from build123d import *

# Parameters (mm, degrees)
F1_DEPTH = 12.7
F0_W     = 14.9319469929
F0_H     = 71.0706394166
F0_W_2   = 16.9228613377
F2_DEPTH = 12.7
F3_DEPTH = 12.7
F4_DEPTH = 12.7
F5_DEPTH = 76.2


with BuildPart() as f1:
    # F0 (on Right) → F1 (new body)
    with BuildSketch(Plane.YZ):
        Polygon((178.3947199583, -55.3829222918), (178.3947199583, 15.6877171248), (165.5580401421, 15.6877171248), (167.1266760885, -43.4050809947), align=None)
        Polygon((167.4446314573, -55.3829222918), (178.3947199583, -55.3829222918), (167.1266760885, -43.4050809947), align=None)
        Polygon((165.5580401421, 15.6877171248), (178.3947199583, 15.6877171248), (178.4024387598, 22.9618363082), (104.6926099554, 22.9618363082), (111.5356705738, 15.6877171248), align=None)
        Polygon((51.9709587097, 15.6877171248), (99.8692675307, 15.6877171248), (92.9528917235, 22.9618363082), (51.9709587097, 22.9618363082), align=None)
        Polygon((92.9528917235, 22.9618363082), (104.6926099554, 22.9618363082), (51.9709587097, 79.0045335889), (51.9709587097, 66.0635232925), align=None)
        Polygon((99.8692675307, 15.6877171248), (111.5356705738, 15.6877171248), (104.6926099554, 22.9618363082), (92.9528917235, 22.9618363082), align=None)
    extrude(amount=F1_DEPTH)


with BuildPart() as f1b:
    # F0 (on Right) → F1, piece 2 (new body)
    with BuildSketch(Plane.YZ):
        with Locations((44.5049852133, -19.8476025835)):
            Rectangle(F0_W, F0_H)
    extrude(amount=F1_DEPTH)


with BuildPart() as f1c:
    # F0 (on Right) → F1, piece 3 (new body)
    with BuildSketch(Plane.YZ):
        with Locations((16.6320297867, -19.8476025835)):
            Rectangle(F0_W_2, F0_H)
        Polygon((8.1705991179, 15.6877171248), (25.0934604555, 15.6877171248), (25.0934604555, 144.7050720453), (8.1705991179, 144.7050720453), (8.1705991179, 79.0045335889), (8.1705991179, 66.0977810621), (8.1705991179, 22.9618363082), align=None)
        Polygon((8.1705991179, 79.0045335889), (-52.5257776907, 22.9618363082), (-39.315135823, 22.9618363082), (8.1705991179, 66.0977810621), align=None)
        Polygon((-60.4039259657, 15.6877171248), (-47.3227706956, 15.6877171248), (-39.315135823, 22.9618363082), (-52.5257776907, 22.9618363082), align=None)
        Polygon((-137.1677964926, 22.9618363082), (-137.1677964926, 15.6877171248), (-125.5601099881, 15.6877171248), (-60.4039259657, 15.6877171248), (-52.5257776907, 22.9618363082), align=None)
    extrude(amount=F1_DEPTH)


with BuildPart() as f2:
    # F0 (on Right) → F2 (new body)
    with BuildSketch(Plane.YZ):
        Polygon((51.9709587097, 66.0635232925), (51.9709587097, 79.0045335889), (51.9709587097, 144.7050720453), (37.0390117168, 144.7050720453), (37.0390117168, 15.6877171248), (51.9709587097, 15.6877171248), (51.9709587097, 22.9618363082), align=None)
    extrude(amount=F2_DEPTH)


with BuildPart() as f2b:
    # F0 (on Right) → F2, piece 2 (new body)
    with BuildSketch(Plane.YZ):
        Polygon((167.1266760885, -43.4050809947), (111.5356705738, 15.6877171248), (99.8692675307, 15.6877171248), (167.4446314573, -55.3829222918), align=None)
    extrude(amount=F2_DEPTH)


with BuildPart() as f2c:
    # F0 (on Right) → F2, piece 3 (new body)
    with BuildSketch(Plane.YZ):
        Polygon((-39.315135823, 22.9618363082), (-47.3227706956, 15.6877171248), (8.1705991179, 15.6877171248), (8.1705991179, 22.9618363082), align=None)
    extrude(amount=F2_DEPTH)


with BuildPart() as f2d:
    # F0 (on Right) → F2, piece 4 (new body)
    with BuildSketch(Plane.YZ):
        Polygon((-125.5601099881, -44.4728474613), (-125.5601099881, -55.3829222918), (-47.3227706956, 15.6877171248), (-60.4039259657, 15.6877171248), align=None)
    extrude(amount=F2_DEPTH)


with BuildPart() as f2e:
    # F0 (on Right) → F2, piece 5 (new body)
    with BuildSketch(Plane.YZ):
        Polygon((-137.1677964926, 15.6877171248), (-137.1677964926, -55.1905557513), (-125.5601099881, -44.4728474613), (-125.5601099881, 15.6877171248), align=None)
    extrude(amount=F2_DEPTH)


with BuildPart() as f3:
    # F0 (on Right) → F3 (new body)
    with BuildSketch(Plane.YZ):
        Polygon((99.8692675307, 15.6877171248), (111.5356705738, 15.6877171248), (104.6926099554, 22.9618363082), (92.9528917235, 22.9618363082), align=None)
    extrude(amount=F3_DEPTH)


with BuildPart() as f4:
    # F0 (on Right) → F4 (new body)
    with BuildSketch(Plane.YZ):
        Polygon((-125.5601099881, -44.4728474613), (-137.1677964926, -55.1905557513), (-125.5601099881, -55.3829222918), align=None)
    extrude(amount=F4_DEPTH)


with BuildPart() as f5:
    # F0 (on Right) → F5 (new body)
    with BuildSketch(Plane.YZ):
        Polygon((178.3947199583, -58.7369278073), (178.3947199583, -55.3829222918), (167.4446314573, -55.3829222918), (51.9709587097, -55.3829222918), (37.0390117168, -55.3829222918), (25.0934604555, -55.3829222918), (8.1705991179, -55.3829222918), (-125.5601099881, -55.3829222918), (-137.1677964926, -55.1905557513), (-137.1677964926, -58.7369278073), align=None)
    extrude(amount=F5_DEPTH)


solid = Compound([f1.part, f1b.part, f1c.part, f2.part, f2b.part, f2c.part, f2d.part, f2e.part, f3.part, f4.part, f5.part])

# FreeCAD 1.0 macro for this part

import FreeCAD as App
import Part
import Sketcher

V = App.Vector
Q = App.Units.Quantity


def add_polygon(sketch, points):
    """Adds a closed chain of lines whose ends are joined by coincident constraints."""
    first, n = sketch.GeometryCount, len(points)
    for a, b in zip(points, points[1:] + points[:1]):
        sketch.addGeometry(Part.LineSegment(App.Vector(*a, 0), App.Vector(*b, 0)), False)
    for i in range(n):
        sketch.addConstraint(Sketcher.Constraint("Coincident", first + i, 2, first + (i + 1) % n, 1))

doc = App.newDocument("Part")
body = doc.addObject("PartDesign::Body", "Body")

# Sketch on YZ plane
sketch1 = body.newObject("Sketcher::SketchObject", "Sketch")
sketch1.AttachmentSupport = (doc.getObject("YZ_Plane"), [""])
sketch1.MapMode = "FlatFace"
add_polygon(sketch1, [(178, -55), (178, 16), (178, 23), (105, 23), (52, 79), (52, 66), (93, 23), (52, 23), (52, 16), (166, 16), (167, -55)])  # lines 0-10
sketch1.addConstraint([
    Sketcher.Constraint("Vertical", 0),
    Sketcher.Constraint("Horizontal", 2),
    Sketcher.Constraint("Vertical", 4),
    Sketcher.Constraint("Horizontal", 6),
    Sketcher.Constraint("Vertical", 7),
    Sketcher.Constraint("Horizontal", 8),
    Sketcher.Constraint("Horizontal", 10),
    Sketcher.Constraint("Horizontal", 2, 2, 5, 2),
    Sketcher.Constraint("Horizontal", 0, 2, 7, 2),
    Sketcher.Constraint("Vertical", 4, 2, 6, 2),
    Sketcher.Constraint("DistanceX", 2, 2, 2, 1, Q("73.709829 mm")),
    Sketcher.Constraint("DistanceX", 8, 1, 8, 2, Q("113.587081 mm")),
    Sketcher.Constraint("DistanceX", 10, 1, 10, 2, Q("10.950089 mm")),
    Sketcher.Constraint("DistanceY", 0, 1, 0, 2, Q("71.070639 mm")),
    Sketcher.Constraint("DistanceY", 4, 2, 4, 1, Q("12.94101 mm")),
    Sketcher.Constraint("DistanceY", 7, 2, 7, 1, Q("7.274119 mm")),
    Sketcher.Constraint("DistanceX", 8, 2, 1, 2, Q("12.844399 mm")),
    Sketcher.Constraint("Distance", 5, Q("59.474988 mm")),
    Sketcher.Constraint("DistanceX", 6, 2, 6, 1, Q("40.981933 mm")),
    Sketcher.Constraint("DistanceX", -1, 1, 0, 2, Q("178.39472 mm")),
    Sketcher.Constraint("DistanceX", -1, 1, 1, 2, Q("178.402439 mm")),
    Sketcher.Constraint("DistanceY", -1, 1, 0, 2, Q("15.687717 mm")),
])
pad1 = body.newObject("PartDesign::Pad", "Pad")
pad1.Profile = sketch1
pad1.Length = Q("0.5 in")
body2 = doc.addObject("PartDesign::Body", "Body001")

# Sketch on YZ plane
sketch2 = body2.newObject("Sketcher::SketchObject", "Sketch001")
sketch2.AttachmentSupport = (doc.getObject("YZ_Plane001"), [""])
sketch2.MapMode = "FlatFace"
add_polygon(sketch2, [(37, 16), (37, -55), (52, -55), (52, 16)])  # lines 0-3
sketch2.addConstraint([
    Sketcher.Constraint("Vertical", 0),
    Sketcher.Constraint("Horizontal", 1),
    Sketcher.Constraint("Vertical", 2),
    Sketcher.Constraint("Horizontal", 3),
    Sketcher.Constraint("DistanceY", 0, 2, 0, 1, Q("71.070639 mm")),
    Sketcher.Constraint("DistanceX", 1, 1, 1, 2, Q("14.931947 mm")),
    Sketcher.Constraint("DistanceX", -1, 1, 0, 2, Q("37.039012 mm")),
    Sketcher.Constraint("DistanceY", 0, 2, -1, 1, Q("55.382922 mm")),
])
pad2 = body2.newObject("PartDesign::Pad", "Pad001")
pad2.Profile = sketch2
pad2.Length = Q("0.5 in")
body3 = doc.addObject("PartDesign::Body", "Body002")

# Sketch on YZ plane
sketch3 = body3.newObject("Sketcher::SketchObject", "Sketch002")
sketch3.AttachmentSupport = (doc.getObject("YZ_Plane002"), [""])
sketch3.MapMode = "FlatFace"
add_polygon(sketch3, [(8, -55), (25, -55), (25, 145), (8, 145), (8, 79), (-53, 23), (-137, 23), (-137, 16), (-47, 16), (-39, 23), (8, 66)])  # lines 0-10
sketch3.addConstraint([
    Sketcher.Constraint("Horizontal", 0),
    Sketcher.Constraint("Vertical", 1),
    Sketcher.Constraint("Horizontal", 2),
    Sketcher.Constraint("Vertical", 3),
    Sketcher.Constraint("Horizontal", 5),
    Sketcher.Constraint("Vertical", 6),
    Sketcher.Constraint("Horizontal", 7),
    Sketcher.Constraint("Vertical", 10),
    Sketcher.Constraint("Parallel", 8, 9),
    Sketcher.Constraint("Horizontal", 5, 2, 8, 2),
    Sketcher.Constraint("Vertical", 3, 2, 9, 2),
    Sketcher.Constraint("DistanceX", 0, 1, 0, 2, Q("16.922861 mm")),
    Sketcher.Constraint("DistanceX", 5, 2, 5, 1, Q("84.642019 mm")),
    Sketcher.Constraint("DistanceY", 3, 2, 3, 1, Q("65.700538 mm")),
    Sketcher.Constraint("DistanceY", 6, 2, 6, 1, Q("7.274119 mm")),
    Sketcher.Constraint("DistanceX", -1, 1, 2, 2, Q("8.170599 mm")),
    Sketcher.Constraint("Distance", 9, Q("64.152979 mm")),
    Sketcher.Constraint("DistanceX", 7, 1, 7, 2, Q("89.845026 mm")),
    Sketcher.Constraint("DistanceY", 1, 1, 1, 2, Q("200.087994 mm")),
    Sketcher.Constraint("DistanceY", 10, 2, 10, 1, Q("121.480703 mm")),
    Sketcher.Constraint("DistanceX", 7, 2, -1, 1, Q("47.322771 mm")),
    Sketcher.Constraint("DistanceY", -1, 1, 9, 2, Q("66.097781 mm")),
])
pad3 = body3.newObject("PartDesign::Pad", "Pad002")
pad3.Profile = sketch3
pad3.Length = Q("0.5 in")
body4 = doc.addObject("PartDesign::Body", "Body003")

# Sketch on YZ plane
sketch4 = body4.newObject("Sketcher::SketchObject", "Sketch003")
sketch4.AttachmentSupport = (doc.getObject("YZ_Plane003"), [""])
sketch4.MapMode = "FlatFace"
add_polygon(sketch4, [(52, 145), (37, 145), (37, 16), (52, 16)])  # lines 0-3
sketch4.addConstraint([
    Sketcher.Constraint("Horizontal", 0),
    Sketcher.Constraint("Vertical", 1),
    Sketcher.Constraint("Horizontal", 2),
    Sketcher.Constraint("Vertical", 3),
    Sketcher.Constraint("DistanceX", 0, 2, 0, 1, Q("14.931947 mm")),
    Sketcher.Constraint("DistanceY", 1, 2, 1, 1, Q("129.017355 mm")),
    Sketcher.Constraint("DistanceX", -1, 1, 0, 2, Q("37.039012 mm")),
    Sketcher.Constraint("DistanceY", -1, 1, 0, 2, Q("144.705072 mm")),
])
pad4 = body4.newObject("PartDesign::Pad", "Pad003")
pad4.Profile = sketch4
pad4.Length = Q("0.5 in")
body5 = doc.addObject("PartDesign::Body", "Body004")

# Sketch on YZ plane
sketch5 = body5.newObject("Sketcher::SketchObject", "Sketch004")
sketch5.AttachmentSupport = (doc.getObject("YZ_Plane004"), [""])
sketch5.MapMode = "FlatFace"
add_polygon(sketch5, [(167, -43), (112, 16), (100, 16), (167, -55)])  # lines 0-3
sketch5.addConstraint([
    Sketcher.Constraint("Horizontal", 1),
    Sketcher.Constraint("DistanceY", 3, 2, 0, 2, Q("59.092798 mm")),
    Sketcher.Constraint("Distance", 0, Q("81.13149 mm")),
    Sketcher.Constraint("Distance", 3, Q("11.982061 mm")),
    Sketcher.Constraint("DistanceX", 1, 2, 1, 1, Q("11.666403 mm")),
    Sketcher.Constraint("DistanceX", -1, 1, 0, 2, Q("111.535671 mm")),
    Sketcher.Constraint("DistanceX", -1, 1, 2, 2, Q("167.444631 mm")),
    Sketcher.Constraint("DistanceY", 3, 2, -1, 1, Q("43.405081 mm")),
])
pad5 = body5.newObject("PartDesign::Pad", "Pad004")
pad5.Profile = sketch5
pad5.Length = Q("0.5 in")
body6 = doc.addObject("PartDesign::Body", "Body005")

# Sketch on YZ plane
sketch6 = body6.newObject("Sketcher::SketchObject", "Sketch005")
sketch6.AttachmentSupport = (doc.getObject("YZ_Plane005"), [""])
sketch6.MapMode = "FlatFace"
add_polygon(sketch6, [(-39, 23), (-47, 16), (8, 16), (8, 23)])  # lines 0-3
sketch6.addConstraint([
    Sketcher.Constraint("Horizontal", 1),
    Sketcher.Constraint("Vertical", 2),
    Sketcher.Constraint("Horizontal", 3),
    Sketcher.Constraint("DistanceX", 1, 1, 1, 2, Q("55.49337 mm")),
    Sketcher.Constraint("DistanceY", 2, 1, 2, 2, Q("7.274119 mm")),
    Sketcher.Constraint("DistanceX", -1, 1, 1, 2, Q("8.170599 mm")),
    Sketcher.Constraint("DistanceX", 3, 2, 3, 1, Q("47.485735 mm")),
    Sketcher.Constraint("DistanceY", -1, 1, 0, 2, Q("15.687717 mm")),
])
pad6 = body6.newObject("PartDesign::Pad", "Pad005")
pad6.Profile = sketch6
pad6.Length = Q("0.5 in")
body7 = doc.addObject("PartDesign::Body", "Body006")

# Sketch on YZ plane
sketch7 = body7.newObject("Sketcher::SketchObject", "Sketch006")
sketch7.AttachmentSupport = (doc.getObject("YZ_Plane006"), [""])
sketch7.MapMode = "FlatFace"
add_polygon(sketch7, [(-126, -44), (-126, -55), (-47, 16), (-60, 16)])  # lines 0-3
sketch7.addConstraint([
    Sketcher.Constraint("Vertical", 0),
    Sketcher.Constraint("Horizontal", 2),
    Sketcher.Constraint("DistanceX", 2, 2, 2, 1, Q("13.081155 mm")),
    Sketcher.Constraint("DistanceY", 0, 2, 0, 1, Q("10.910075 mm")),
    Sketcher.Constraint("DistanceX", 0, 2, -1, 1, Q("125.56011 mm")),
    Sketcher.Constraint("DistanceX", 1, 2, -1, 1, Q("47.322771 mm")),
    Sketcher.Constraint("DistanceY", 0, 2, 1, 2, Q("71.070639 mm")),
    Sketcher.Constraint("DistanceY", 0, 2, -1, 1, Q("55.382922 mm")),
])
pad7 = body7.newObject("PartDesign::Pad", "Pad006")
pad7.Profile = sketch7
pad7.Length = Q("0.5 in")
body8 = doc.addObject("PartDesign::Body", "Body007")

# Sketch on YZ plane
sketch8 = body8.newObject("Sketcher::SketchObject", "Sketch007")
sketch8.AttachmentSupport = (doc.getObject("YZ_Plane007"), [""])
sketch8.MapMode = "FlatFace"
add_polygon(sketch8, [(-137, 16), (-137, -55), (-126, -44), (-126, 16)])  # lines 0-3
sketch8.addConstraint([
    Sketcher.Constraint("Vertical", 0),
    Sketcher.Constraint("Vertical", 2),
    Sketcher.Constraint("Horizontal", 3),
    Sketcher.Constraint("DistanceX", 3, 2, 3, 1, Q("11.607687 mm")),
    Sketcher.Constraint("DistanceY", 0, 2, 0, 1, Q("70.878273 mm")),
    Sketcher.Constraint("DistanceY", 2, 1, 2, 2, Q("60.160565 mm")),
    Sketcher.Constraint("DistanceX", 1, 2, -1, 1, Q("125.56011 mm")),
    Sketcher.Constraint("DistanceY", 0, 2, -1, 1, Q("55.190556 mm")),
])
pad8 = body8.newObject("PartDesign::Pad", "Pad007")
pad8.Profile = sketch8
pad8.Length = Q("0.5 in")
body9 = doc.addObject("PartDesign::Body", "Body008")

# Sketch on YZ plane
sketch9 = body9.newObject("Sketcher::SketchObject", "Sketch008")
sketch9.AttachmentSupport = (doc.getObject("YZ_Plane008"), [""])
sketch9.MapMode = "FlatFace"
add_polygon(sketch9, [(100, 16), (112, 16), (105, 23), (93, 23)])  # lines 0-3
sketch9.addConstraint([
    Sketcher.Constraint("Horizontal", 0),
    Sketcher.Constraint("Horizontal", 2),
    Sketcher.Constraint("DistanceX", 2, 2, 2, 1, Q("11.739718 mm")),
    Sketcher.Constraint("DistanceX", 0, 1, 0, 2, Q("11.666403 mm")),
    Sketcher.Constraint("DistanceX", -1, 1, 0, 2, Q("111.535671 mm")),
    Sketcher.Constraint("DistanceX", -1, 1, 1, 2, Q("104.69261 mm")),
    Sketcher.Constraint("DistanceY", 0, 2, 1, 2, Q("7.274119 mm")),
    Sketcher.Constraint("DistanceY", -1, 1, 0, 2, Q("15.687717 mm")),
])
pad9 = body9.newObject("PartDesign::Pad", "Pad008")
pad9.Profile = sketch9
pad9.Length = Q("0.5 in")
body10 = doc.addObject("PartDesign::Body", "Body009")

# Sketch on YZ plane
sketch10 = body10.newObject("Sketcher::SketchObject", "Sketch009")
sketch10.AttachmentSupport = (doc.getObject("YZ_Plane009"), [""])
sketch10.MapMode = "FlatFace"
add_polygon(sketch10, [(-126, -44), (-137, -55), (-126, -55)])  # lines 0-2
sketch10.addConstraint([
    Sketcher.Constraint("Vertical", 2),
    Sketcher.Constraint("Distance", 1, Q("11.60928 mm")),
    Sketcher.Constraint("DistanceY", 2, 1, 2, 2, Q("10.910075 mm")),
    Sketcher.Constraint("DistanceX", 1, 2, -1, 1, Q("125.56011 mm")),
    Sketcher.Constraint("DistanceY", 0, 2, 2, 2, Q("10.717708 mm")),
    Sketcher.Constraint("DistanceY", 0, 2, -1, 1, Q("55.190556 mm")),
])
pad10 = body10.newObject("PartDesign::Pad", "Pad009")
pad10.Profile = sketch10
pad10.Length = Q("0.5 in")
body11 = doc.addObject("PartDesign::Body", "Body010")

# Sketch on YZ plane
sketch11 = body11.newObject("Sketcher::SketchObject", "Sketch010")
sketch11.AttachmentSupport = (doc.getObject("YZ_Plane010"), [""])
sketch11.MapMode = "FlatFace"
add_polygon(sketch11, [(178.4, -58.7), (178.4, -55.4), (-125.6, -55.4), (-137.2, -55.2), (-137.2, -58.7)])  # lines 0-4
sketch11.addConstraint([
    Sketcher.Constraint("Vertical", 0),
    Sketcher.Constraint("Horizontal", 1),
    Sketcher.Constraint("Vertical", 3),
    Sketcher.Constraint("Horizontal", 4),
    Sketcher.Constraint("DistanceX", 1, 2, 1, 1, Q("303.95483 mm")),
    Sketcher.Constraint("Distance", 2, Q("11.60928 mm")),
    Sketcher.Constraint("DistanceX", 4, 1, 4, 2, Q("315.562516 mm")),
    Sketcher.Constraint("DistanceY", 0, 1, 0, 2, Q("3.354006 mm")),
    Sketcher.Constraint("DistanceX", -1, 1, 0, 2, Q("178.39472 mm")),
    Sketcher.Constraint("DistanceY", 0, 2, -1, 1, Q("55.382922 mm")),
])
pad11 = body11.newObject("PartDesign::Pad", "Pad010")
pad11.Profile = sketch11
pad11.Length = Q("3 in")

doc.recompute()
